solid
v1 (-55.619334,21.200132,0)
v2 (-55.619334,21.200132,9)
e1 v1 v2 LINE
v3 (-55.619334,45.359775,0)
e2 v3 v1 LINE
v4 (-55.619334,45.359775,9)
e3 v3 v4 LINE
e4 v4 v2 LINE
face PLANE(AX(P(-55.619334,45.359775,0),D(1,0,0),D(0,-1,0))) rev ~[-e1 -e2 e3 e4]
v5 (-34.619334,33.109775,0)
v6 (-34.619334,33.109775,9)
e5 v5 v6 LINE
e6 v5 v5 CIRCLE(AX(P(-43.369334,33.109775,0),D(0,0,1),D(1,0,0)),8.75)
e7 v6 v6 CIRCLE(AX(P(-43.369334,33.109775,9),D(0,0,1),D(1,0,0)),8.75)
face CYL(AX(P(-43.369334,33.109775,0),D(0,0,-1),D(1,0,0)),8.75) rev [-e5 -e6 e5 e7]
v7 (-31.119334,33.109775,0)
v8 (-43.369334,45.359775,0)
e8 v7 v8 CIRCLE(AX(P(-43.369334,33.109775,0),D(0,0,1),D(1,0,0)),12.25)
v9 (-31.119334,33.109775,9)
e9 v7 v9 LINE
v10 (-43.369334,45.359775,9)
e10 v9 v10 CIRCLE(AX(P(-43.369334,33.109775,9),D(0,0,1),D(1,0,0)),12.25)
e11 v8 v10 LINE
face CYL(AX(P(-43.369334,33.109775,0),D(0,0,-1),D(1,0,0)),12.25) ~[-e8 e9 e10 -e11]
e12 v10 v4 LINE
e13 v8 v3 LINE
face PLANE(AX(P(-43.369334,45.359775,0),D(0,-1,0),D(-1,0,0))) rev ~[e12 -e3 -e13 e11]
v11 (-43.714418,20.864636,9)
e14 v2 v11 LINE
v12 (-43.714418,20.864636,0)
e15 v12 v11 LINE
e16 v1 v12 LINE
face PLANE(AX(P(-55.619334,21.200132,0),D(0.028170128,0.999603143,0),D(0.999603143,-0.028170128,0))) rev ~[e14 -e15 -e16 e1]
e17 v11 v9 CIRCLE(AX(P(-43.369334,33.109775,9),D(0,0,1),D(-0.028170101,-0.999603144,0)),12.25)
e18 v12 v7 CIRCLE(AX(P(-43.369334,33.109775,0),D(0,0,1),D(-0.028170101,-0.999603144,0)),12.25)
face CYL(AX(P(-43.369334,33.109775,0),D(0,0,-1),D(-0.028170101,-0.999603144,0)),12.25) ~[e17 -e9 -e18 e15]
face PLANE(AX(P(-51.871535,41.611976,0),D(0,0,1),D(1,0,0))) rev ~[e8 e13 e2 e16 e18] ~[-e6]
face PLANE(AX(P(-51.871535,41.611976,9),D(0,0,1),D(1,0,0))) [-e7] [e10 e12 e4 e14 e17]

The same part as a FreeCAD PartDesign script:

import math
import FreeCAD as App
import Part
import Sketcher

doc = App.newDocument("Part")
body = doc.addObject("PartDesign::Body", "Body")

sketch1 = body.newObject("Sketcher::SketchObject", "Sketch")
sketch1.AttachmentSupport = (doc.getObject("XY_Plane"), [""])
sketch1.MapMode = "FlatFace"
sketch1.addGeometry([
    Part.LineSegment(App.Vector(-43, 45, 0), App.Vector(-56, 45, 0)),
    Part.LineSegment(App.Vector(-56, 45, 0), App.Vector(-56, 21, 0)),
    Part.LineSegment(App.Vector(-56, 21, 0), App.Vector(-44, 21, 0)),
    Part.ArcOfCircle(Part.Circle(App.Vector(-43, 33, 0), App.Vector(0, 0, 1), 12), math.radians(-92), math.radians(0)),
    Part.ArcOfCircle(Part.Circle(App.Vector(-43, 33, 0), App.Vector(0, 0, 1), 12), math.radians(0), math.radians(90)),
    Part.Circle(App.Vector(-43, 33, 0), App.Vector(0, 0, 1), 9),
], False)
sketch1.addConstraint([
    Sketcher.Constraint("Coincident", 0, 2, 1, 1),
    Sketcher.Constraint("Coincident", 1, 2, 2, 1),
    Sketcher.Constraint("Tangent", 2, 2, 3, 1),
    Sketcher.Constraint("Tangent", 3, 2, 4, 1),
    Sketcher.Constraint("Tangent", 4, 2, 0, 1),
    Sketcher.Constraint("Horizontal", 0),
    Sketcher.Constraint("Vertical", 1),
    Sketcher.Constraint("Coincident", 5, 3, 3, 3),
    Sketcher.Constraint("Equal", 3, 4),
    Sketcher.Constraint("Horizontal", 5, 3, 3, 2),
    Sketcher.Constraint("Diameter", 5, 17.5),
    Sketcher.Constraint("Radius", 3, 12.25),
    Sketcher.Constraint("DistanceX", 0, 2, 0, 1, 12.25),
    Sketcher.Constraint("DistanceY", 1, 2, 1, 1, 24.159642),
    Sketcher.Constraint("DistanceX", 2, 2, -1, 1, 43.714418),
    Sketcher.Constraint("DistanceY", -1, 1, 3, 3, 33.109775),
])
pad1 = body.newObject("PartDesign::Pad", "Pad")
pad1.Profile = sketch1
pad1.Length = 9

doc.recompute()
